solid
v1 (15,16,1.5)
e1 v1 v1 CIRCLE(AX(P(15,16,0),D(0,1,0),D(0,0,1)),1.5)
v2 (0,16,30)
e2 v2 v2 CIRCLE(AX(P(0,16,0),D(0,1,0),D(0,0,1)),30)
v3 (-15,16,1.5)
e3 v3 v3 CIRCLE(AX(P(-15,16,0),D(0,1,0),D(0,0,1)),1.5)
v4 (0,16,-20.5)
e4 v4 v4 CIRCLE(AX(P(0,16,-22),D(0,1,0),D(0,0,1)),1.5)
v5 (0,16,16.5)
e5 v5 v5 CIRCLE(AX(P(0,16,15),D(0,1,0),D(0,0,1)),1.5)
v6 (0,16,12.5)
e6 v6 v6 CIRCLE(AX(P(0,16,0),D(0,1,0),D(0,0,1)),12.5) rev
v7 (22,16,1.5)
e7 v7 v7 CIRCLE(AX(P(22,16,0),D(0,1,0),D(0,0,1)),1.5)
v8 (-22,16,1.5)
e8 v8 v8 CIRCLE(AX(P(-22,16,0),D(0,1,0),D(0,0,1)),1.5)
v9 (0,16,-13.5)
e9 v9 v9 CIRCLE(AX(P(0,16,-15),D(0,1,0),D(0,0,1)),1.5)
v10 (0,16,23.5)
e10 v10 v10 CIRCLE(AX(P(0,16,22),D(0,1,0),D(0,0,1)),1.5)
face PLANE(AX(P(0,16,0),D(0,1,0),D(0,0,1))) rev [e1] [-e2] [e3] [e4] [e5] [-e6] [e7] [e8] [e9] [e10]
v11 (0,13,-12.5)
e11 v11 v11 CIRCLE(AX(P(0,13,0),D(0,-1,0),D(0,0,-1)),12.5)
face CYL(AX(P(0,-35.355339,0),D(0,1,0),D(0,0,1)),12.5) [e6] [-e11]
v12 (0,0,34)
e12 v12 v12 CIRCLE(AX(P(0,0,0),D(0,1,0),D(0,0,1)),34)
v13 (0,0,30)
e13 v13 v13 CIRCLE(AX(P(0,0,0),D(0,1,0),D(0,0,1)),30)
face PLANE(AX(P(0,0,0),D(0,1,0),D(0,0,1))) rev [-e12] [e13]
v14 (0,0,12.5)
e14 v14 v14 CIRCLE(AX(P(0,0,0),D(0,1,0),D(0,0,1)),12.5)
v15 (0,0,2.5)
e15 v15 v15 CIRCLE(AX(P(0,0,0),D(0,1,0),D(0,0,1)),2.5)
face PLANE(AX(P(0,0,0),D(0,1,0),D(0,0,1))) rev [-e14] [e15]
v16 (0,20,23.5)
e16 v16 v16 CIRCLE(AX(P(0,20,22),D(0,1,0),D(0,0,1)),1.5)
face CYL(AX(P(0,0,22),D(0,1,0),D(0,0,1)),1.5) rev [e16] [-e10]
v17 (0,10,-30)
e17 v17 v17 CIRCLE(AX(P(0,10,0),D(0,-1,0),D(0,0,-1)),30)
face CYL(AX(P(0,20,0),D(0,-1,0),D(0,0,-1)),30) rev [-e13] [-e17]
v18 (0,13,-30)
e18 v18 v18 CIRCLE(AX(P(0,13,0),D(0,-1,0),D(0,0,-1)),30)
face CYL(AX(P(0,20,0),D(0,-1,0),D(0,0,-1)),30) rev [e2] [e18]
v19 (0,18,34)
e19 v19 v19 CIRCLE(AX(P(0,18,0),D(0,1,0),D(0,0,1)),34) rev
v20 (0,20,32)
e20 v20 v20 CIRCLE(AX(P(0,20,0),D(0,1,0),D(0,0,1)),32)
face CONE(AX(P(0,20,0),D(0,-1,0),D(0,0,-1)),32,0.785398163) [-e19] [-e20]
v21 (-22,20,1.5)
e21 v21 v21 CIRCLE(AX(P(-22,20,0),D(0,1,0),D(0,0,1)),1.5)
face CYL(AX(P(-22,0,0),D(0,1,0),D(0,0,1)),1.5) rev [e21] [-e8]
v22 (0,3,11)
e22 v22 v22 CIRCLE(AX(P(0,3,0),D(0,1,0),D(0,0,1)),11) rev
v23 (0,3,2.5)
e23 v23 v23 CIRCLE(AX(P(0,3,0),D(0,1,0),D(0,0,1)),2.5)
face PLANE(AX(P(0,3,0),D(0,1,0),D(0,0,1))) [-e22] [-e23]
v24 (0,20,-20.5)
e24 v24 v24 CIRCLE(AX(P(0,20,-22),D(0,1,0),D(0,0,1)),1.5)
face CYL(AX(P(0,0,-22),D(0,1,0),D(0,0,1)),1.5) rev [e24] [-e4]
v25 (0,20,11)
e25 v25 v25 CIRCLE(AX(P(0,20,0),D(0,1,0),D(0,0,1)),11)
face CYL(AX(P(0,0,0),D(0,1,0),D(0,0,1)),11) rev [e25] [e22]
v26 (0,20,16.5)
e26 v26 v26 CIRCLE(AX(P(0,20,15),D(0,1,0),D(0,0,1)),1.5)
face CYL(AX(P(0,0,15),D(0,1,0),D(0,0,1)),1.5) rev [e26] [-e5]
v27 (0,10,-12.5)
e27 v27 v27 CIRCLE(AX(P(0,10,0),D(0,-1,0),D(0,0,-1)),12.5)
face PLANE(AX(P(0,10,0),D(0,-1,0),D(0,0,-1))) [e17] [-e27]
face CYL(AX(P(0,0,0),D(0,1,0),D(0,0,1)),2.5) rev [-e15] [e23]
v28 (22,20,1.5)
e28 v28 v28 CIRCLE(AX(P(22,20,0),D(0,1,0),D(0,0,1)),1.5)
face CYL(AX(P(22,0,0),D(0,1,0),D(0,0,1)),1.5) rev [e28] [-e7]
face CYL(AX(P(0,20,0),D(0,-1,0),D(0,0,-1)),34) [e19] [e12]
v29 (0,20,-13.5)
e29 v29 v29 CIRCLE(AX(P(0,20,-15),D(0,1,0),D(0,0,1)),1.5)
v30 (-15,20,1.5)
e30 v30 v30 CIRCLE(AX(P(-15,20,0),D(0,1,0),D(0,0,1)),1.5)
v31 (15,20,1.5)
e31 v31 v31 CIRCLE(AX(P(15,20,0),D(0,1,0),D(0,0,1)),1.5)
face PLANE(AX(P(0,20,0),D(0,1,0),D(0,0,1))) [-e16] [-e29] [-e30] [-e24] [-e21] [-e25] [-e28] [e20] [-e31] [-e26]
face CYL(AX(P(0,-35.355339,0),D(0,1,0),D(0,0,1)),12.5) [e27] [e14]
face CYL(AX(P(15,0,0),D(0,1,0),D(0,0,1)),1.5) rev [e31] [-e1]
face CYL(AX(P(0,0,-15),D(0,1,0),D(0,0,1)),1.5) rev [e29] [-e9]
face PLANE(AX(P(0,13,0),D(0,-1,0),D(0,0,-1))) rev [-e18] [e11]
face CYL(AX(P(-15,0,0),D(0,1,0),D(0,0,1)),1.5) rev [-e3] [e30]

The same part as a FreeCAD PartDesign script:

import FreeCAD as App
import Part
import Sketcher
from FreeCAD import Vector
Q = App.Units.Quantity


def edges_at(feature, points):
    """Names of the edges that pass closest to the given points."""
    edges = feature.Shape.Edges
    near = lambda p: min(range(len(edges)), key=lambda i: edges[i].distToShape(Part.Vertex(*p))[0])
    return sorted({f"Edge{near(p) + 1}" for p in points})

doc = App.newDocument("Part")
params = doc.addObject("Spreadsheet::Sheet", "Params")
for row, (alias, value) in enumerate([
    ("sketch1_diameter", "68 mm"),
    ("sketch1_diameter2", "60 mm"),
    ("pad1_length", "20 mm"),
    ("sketch2_diameter", "68 mm"),
    ("pad2_length", "4 mm"),
    ("sketch3_diameter", "22 mm"),
    ("sketch3_diameter2", "3 mm"),
    ("chamfer_size", "2 mm"),
    ("sketch4_diameter", "25 mm"),
    ("sketch4_diameter2", "22 mm"),
    ("pad3_length", "16 mm"),
    ("sketch5_diameter", "25 mm"),
    ("pad4_length", "3 mm"),
    ("sketch6_diameter", "5 mm"),
    ("sketch7_diameter", "60 mm"),
    ("sketch7_diameter2", "25 mm"),
    ("pad5_length", "3 mm"),
], start=1):
    params.set(f"A{row}", alias)
    params.set(f"B{row}", "=" + value)
    params.setAlias(f"B{row}", alias)

body = doc.addObject("PartDesign::Body", "Body")

# Sketch on XZ plane
sketch1 = body.newObject("Sketcher::SketchObject", "Sketch")
sketch1.AttachmentSupport = (doc.getObject("XZ_Plane"), [""])
sketch1.MapMode = "FlatFace"
sketch1.addGeometry([
    Part.Circle(Vector(0, 0, 0), Vector(0, 0, 1), 34),
    Part.Circle(Vector(0, 0, 0), Vector(0, 0, 1), 30),
], False)
sketch1.addConstraint([
    Sketcher.Constraint("Coincident", 0, 3, -1, 1),
    Sketcher.Constraint("Coincident", 1, 3, -1, 1),
    Sketcher.Constraint("Diameter", 0, Q("68 mm")),
    Sketcher.Constraint("Diameter", 1, Q("60 mm")),
])
sketch1.setExpression("Constraints[2]", "Params.sketch1_diameter")
sketch1.setExpression("Constraints[3]", "Params.sketch1_diameter2")
pad1 = body.newObject("PartDesign::Pad", "Pad")
pad1.Profile = sketch1
pad1.setExpression("Length", "Params.pad1_length")
pad1.Reversed = True

# Sketch on XZ plane
sketch2 = body.newObject("Sketcher::SketchObject", "Sketch001")
sketch2.AttachmentSupport = (doc.getObject("XZ_Plane"), [""])
sketch2.MapMode = "FlatFace"
sketch2.AttachmentOffset = App.Placement(Vector(0, 0, -20), App.Rotation())
sketch2.addGeometry(Part.Circle(Vector(0, 0, 0), Vector(0, 0, 1), 34), False)
sketch2.addConstraint([
    Sketcher.Constraint("Coincident", 0, 3, -1, 1),
    Sketcher.Constraint("Diameter", 0, Q("68 mm")),
])
sketch2.setExpression("Constraints[1]", "Params.sketch2_diameter")
pad2 = body.newObject("PartDesign::Pad", "Pad001")
pad2.Profile = sketch2
pad2.setExpression("Length", "Params.pad2_length")

# Sketch on XZ plane
sketch3 = body.newObject("Sketcher::SketchObject", "Sketch002")
sketch3.AttachmentSupport = (doc.getObject("XZ_Plane"), [""])
sketch3.MapMode = "FlatFace"
sketch3.AttachmentOffset = App.Placement(Vector(0, 0, -20), App.Rotation())
sketch3.addGeometry([
    Part.Circle(Vector(0, 0, 0), Vector(0, 0, 1), 11),  # 0
    Part.Circle(Vector(0, -15, 0), Vector(0, 0, 1), 1.5),  # 1
    Part.Circle(Vector(0, -22, 0), Vector(0, 0, 1), 1.5),  # 2
    Part.Circle(Vector(15, 0, 0), Vector(0, 0, 1), 1.5),  # 3
    Part.Circle(Vector(22, 0, 0), Vector(0, 0, 1), 1.5),  # 4
    Part.Circle(Vector(0, 15, 0), Vector(0, 0, 1), 1.5),  # 5
    Part.Circle(Vector(0, 22, 0), Vector(0, 0, 1), 1.5),  # 6
    Part.Circle(Vector(-15, 0, 0), Vector(0, 0, 1), 1.5),  # 7
    Part.Circle(Vector(-22, 0, 0), Vector(0, 0, 1), 1.5),  # 8
], False)
sketch3.addConstraint([
    Sketcher.Constraint("Coincident", 0, 3, -1, 1),
    Sketcher.Constraint("Equal", 1, 2),
    Sketcher.Constraint("Equal", 2, 3),
    Sketcher.Constraint("Equal", 3, 4),
    Sketcher.Constraint("Equal", 4, 5),
    Sketcher.Constraint("Equal", 5, 6),
    Sketcher.Constraint("Equal", 6, 7),
    Sketcher.Constraint("Equal", 7, 8),
    Sketcher.Constraint("Symmetric", 1, 3, 5, 3, -1, 1),
    Sketcher.Constraint("Symmetric", 2, 3, 6, 3, -1, 1),
    Sketcher.Constraint("Symmetric", 3, 3, 7, 3, -1, 1),
    Sketcher.Constraint("Symmetric", 4, 3, 8, 3, -1, 1),
    Sketcher.Constraint("PointOnObject", 1, 3, -2),
    Sketcher.Constraint("PointOnObject", 2, 3, -2),
    Sketcher.Constraint("PointOnObject", 3, 3, -1),
    Sketcher.Constraint("PointOnObject", 4, 3, -1),
    Sketcher.Constraint("Diameter", 0, Q("22 mm")),
    Sketcher.Constraint("Diameter", 1, Q("3 mm")),
    Sketcher.Constraint("DistanceY", 1, 3, -1, 1, Q("15 mm")),
    Sketcher.Constraint("DistanceY", 2, 3, -1, 1, Q("22 mm")),
    Sketcher.Constraint("DistanceX", -1, 1, 3, 3, Q("15 mm")),
    Sketcher.Constraint("DistanceX", -1, 1, 4, 3, Q("22 mm")),
])
sketch3.setExpression("Constraints[16]", "Params.sketch3_diameter")
sketch3.setExpression("Constraints[17]", "Params.sketch3_diameter2")
pocket1 = body.newObject("PartDesign::Pocket", "Pocket")
pocket1.Profile = sketch3
pocket1.Type = "ThroughAll"
pocket1.Reversed = True
doc.recompute()

chamfer = body.newObject("PartDesign::Chamfer", "Chamfer")
chamfer.Base = (pocket1, edges_at(pocket1, [(0, 20, -34)]))
chamfer.setExpression("Size", "Params.chamfer_size")

# Sketch on XZ plane
sketch4 = body.newObject("Sketcher::SketchObject", "Sketch003")
sketch4.AttachmentSupport = (doc.getObject("XZ_Plane"), [""])
sketch4.MapMode = "FlatFace"
sketch4.AttachmentOffset = App.Placement(Vector(0, 0, -16), App.Rotation())
sketch4.addGeometry([
    Part.Circle(Vector(0, 0, 0), Vector(0, 0, 1), 12),
    Part.Circle(Vector(0, 0, 0), Vector(0, 0, 1), 11),
], False)
sketch4.addConstraint([
    Sketcher.Constraint("Coincident", 0, 3, -1, 1),
    Sketcher.Constraint("Coincident", 1, 3, -1, 1),
    Sketcher.Constraint("Diameter", 0, Q("25 mm")),
    Sketcher.Constraint("Diameter", 1, Q("22 mm")),
])
sketch4.setExpression("Constraints[2]", "Params.sketch4_diameter")
sketch4.setExpression("Constraints[3]", "Params.sketch4_diameter2")
pad3 = body.newObject("PartDesign::Pad", "Pad002")
pad3.Profile = sketch4
pad3.setExpression("Length", "Params.pad3_length")

# Sketch on XZ plane
sketch5 = body.newObject("Sketcher::SketchObject", "Sketch004")
sketch5.AttachmentSupport = (doc.getObject("XZ_Plane"), [""])
sketch5.MapMode = "FlatFace"
sketch5.addGeometry(Part.Circle(Vector(0, 0, 0), Vector(0, 0, 1), 12), False)
sketch5.addConstraint([
    Sketcher.Constraint("Coincident", 0, 3, -1, 1),
    Sketcher.Constraint("Diameter", 0, Q("25 mm")),
])
sketch5.setExpression("Constraints[1]", "Params.sketch5_diameter")
pad4 = body.newObject("PartDesign::Pad", "Pad003")
pad4.Profile = sketch5
pad4.setExpression("Length", "Params.pad4_length")
pad4.Reversed = True

# Sketch on XZ plane
sketch6 = body.newObject("Sketcher::SketchObject", "Sketch005")
sketch6.AttachmentSupport = (doc.getObject("XZ_Plane"), [""])
sketch6.MapMode = "FlatFace"
sketch6.AttachmentOffset = App.Placement(Vector(0, 0, -3), App.Rotation())
sketch6.addGeometry(Part.Circle(Vector(0, 0, 0), Vector(0, 0, 1), 2.5), False)
sketch6.addConstraint([
    Sketcher.Constraint("Coincident", 0, 3, -1, 1),
    Sketcher.Constraint("Diameter", 0, Q("5 mm")),
])
sketch6.setExpression("Constraints[1]", "Params.sketch6_diameter")
pocket2 = body.newObject("PartDesign::Pocket", "Pocket001")
pocket2.Profile = sketch6
pocket2.Type = "ThroughAll"
pocket2.Reversed = True

# Sketch on XZ plane
sketch7 = body.newObject("Sketcher::SketchObject", "Sketch006")
sketch7.AttachmentSupport = (doc.getObject("XZ_Plane"), [""])
sketch7.MapMode = "FlatFace"
sketch7.AttachmentOffset = App.Placement(Vector(0, 0, -13), App.Rotation())
sketch7.addGeometry([
    Part.Circle(Vector(0, 0, 0), Vector(0, 0, 1), 30),
    Part.Circle(Vector(0, 0, 0), Vector(0, 0, 1), 12),
], False)
sketch7.addConstraint([
    Sketcher.Constraint("Coincident", 0, 3, -1, 1),
    Sketcher.Constraint("Coincident", 1, 3, -1, 1),
    Sketcher.Constraint("Diameter", 0, Q("60 mm")),
    Sketcher.Constraint("Diameter", 1, Q("25 mm")),
])
sketch7.setExpression("Constraints[2]", "Params.sketch7_diameter")
sketch7.setExpression("Constraints[3]", "Params.sketch7_diameter2")
pad5 = body.newObject("PartDesign::Pad", "Pad004")
pad5.Profile = sketch7
pad5.setExpression("Length", "Params.pad5_length")

doc.recompute()
